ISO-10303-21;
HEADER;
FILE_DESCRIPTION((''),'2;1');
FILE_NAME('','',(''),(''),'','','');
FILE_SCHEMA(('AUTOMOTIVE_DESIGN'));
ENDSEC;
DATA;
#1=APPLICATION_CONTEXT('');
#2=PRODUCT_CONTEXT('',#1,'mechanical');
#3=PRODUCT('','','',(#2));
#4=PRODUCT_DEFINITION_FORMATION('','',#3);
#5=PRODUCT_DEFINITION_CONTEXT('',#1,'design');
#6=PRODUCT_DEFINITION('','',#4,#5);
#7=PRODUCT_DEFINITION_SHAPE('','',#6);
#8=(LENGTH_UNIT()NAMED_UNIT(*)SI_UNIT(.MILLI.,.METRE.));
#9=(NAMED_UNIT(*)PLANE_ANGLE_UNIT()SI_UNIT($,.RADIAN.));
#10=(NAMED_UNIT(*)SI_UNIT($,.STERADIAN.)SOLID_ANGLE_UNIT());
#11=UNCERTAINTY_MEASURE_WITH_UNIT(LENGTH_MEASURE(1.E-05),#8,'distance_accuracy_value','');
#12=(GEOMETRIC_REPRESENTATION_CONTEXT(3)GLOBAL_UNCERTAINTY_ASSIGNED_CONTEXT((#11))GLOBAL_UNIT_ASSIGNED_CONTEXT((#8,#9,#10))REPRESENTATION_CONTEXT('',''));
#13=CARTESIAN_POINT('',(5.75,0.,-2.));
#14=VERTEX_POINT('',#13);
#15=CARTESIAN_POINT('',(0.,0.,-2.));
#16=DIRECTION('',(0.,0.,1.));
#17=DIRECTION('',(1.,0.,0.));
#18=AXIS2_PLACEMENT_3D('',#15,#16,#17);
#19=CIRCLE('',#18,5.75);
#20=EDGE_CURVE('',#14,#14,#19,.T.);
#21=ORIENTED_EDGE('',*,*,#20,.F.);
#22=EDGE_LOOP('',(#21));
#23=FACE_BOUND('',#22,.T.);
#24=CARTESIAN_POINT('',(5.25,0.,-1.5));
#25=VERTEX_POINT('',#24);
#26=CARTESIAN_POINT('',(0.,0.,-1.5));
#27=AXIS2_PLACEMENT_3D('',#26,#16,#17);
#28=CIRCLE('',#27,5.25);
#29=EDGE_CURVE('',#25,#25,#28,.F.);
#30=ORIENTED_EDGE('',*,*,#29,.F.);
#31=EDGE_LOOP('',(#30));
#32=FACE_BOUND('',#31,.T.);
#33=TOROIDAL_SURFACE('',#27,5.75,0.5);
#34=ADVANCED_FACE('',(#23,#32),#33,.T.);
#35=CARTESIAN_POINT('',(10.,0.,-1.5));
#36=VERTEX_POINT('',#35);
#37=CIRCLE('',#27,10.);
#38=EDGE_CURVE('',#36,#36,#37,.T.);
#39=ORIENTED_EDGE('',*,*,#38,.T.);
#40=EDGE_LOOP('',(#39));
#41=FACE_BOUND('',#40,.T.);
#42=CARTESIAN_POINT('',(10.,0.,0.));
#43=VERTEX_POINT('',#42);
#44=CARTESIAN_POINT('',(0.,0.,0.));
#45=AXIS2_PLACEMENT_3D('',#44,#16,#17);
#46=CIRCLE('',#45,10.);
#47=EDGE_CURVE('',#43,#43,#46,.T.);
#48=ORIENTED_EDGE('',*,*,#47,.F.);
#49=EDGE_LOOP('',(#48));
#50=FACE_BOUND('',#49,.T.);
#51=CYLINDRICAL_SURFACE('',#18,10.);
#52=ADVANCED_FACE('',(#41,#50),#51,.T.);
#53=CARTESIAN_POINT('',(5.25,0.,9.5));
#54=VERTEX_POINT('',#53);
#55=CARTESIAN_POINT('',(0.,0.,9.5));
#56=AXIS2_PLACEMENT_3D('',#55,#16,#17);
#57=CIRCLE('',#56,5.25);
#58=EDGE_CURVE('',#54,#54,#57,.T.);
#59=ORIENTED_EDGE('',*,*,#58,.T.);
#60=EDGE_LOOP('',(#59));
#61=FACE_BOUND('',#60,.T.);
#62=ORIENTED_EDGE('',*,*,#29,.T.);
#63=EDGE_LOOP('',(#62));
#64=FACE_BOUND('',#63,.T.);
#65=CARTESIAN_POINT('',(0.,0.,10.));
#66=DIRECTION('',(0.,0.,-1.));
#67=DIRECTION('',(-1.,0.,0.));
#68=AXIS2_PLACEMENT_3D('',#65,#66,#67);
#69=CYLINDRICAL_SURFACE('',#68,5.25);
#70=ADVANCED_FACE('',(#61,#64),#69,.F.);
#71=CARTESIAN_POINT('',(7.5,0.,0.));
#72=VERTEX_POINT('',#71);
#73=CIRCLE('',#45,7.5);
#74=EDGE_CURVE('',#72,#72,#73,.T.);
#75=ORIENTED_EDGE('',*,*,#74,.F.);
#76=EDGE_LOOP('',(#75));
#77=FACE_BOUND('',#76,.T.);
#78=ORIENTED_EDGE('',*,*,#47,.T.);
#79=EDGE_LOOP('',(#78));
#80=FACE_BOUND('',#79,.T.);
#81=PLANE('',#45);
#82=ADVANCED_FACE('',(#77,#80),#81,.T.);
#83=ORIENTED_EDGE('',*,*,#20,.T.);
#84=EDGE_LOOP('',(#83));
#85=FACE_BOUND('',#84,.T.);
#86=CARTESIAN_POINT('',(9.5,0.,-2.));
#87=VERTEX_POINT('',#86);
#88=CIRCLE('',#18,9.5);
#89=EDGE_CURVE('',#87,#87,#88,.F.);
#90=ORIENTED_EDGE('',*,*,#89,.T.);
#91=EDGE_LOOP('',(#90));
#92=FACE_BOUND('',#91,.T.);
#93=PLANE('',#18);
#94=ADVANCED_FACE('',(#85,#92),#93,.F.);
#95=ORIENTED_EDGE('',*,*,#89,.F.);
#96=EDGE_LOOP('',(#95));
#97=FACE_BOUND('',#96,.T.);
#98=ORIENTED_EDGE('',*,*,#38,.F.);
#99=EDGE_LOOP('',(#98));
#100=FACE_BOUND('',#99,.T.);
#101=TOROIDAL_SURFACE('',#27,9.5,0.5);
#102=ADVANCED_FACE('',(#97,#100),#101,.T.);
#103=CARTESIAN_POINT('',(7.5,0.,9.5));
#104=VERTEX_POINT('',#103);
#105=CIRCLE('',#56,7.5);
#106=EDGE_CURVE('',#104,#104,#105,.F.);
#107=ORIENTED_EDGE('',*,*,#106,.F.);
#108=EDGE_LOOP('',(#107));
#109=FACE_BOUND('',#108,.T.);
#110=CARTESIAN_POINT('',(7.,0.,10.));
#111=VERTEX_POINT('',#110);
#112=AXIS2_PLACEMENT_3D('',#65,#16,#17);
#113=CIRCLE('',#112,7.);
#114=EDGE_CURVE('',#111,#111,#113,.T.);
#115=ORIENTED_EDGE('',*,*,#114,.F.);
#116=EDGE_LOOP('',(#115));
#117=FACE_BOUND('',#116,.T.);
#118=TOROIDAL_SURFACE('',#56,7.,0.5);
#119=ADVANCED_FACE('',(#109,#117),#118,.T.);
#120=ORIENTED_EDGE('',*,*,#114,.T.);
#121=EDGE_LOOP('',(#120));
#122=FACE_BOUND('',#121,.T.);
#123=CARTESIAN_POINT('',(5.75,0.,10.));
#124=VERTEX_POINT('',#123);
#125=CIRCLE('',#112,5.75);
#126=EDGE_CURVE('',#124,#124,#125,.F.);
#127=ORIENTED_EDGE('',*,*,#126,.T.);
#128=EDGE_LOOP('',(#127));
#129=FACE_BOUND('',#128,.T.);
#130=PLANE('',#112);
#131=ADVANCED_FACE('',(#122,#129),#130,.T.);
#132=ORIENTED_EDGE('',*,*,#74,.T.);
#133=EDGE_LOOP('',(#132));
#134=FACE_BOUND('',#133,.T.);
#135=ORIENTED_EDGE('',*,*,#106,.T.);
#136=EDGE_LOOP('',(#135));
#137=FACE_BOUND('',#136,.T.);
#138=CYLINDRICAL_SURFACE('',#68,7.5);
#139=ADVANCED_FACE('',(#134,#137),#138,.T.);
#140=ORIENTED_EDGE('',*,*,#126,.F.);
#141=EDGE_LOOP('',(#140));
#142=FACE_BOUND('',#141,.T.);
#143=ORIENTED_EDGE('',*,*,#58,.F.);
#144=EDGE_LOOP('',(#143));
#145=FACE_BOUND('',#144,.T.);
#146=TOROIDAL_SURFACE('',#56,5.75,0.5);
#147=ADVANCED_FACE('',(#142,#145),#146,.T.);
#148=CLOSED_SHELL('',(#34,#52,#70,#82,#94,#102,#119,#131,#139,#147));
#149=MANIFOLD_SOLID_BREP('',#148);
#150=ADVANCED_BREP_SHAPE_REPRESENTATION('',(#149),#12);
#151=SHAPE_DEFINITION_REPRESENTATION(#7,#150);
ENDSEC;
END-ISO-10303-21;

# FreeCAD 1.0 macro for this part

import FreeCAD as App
import Part
import Sketcher


def edges_at(feature, points):
    """Names of the edges that pass closest to the given points."""
    edges = feature.Shape.Edges
    near = lambda p: min(range(len(edges)), key=lambda i: edges[i].distToShape(Part.Vertex(*p))[0])
    return sorted({f"Edge{near(p) + 1}" for p in points})

doc = App.newDocument("Part")
params = doc.addObject("Spreadsheet::Sheet", "Params")
for row, (alias, value) in enumerate([
    ("sketch1_diameter", "15 mm"),
    ("sketch1_diameter2", "10.5 mm"),
    ("pad1_length", "10 mm"),
    ("sketch2_diameter", "20 mm"),
    ("sketch2_diameter2", "10.5 mm"),
    ("pad2_length", "2 mm"),
    ("fillet_radius", "0.5 mm"),
], start=1):
    params.set(f"A{row}", alias)
    params.set(f"B{row}", "=" + value)
    params.setAlias(f"B{row}", alias)

body = doc.addObject("PartDesign::Body", "Body")

# Sketch on XY plane
sketch1 = body.newObject("Sketcher::SketchObject", "Sketch")
sketch1.AttachmentSupport = (doc.getObject("XY_Plane"), [""])
sketch1.MapMode = "FlatFace"
sketch1.addGeometry(Part.Circle(App.Vector(0, 0, 0), App.Vector(0, 0, 1), 7.5), False)
sketch1.addGeometry(Part.Circle(App.Vector(0, 0, 0), App.Vector(0, 0, 1), 5.25), False)
sketch1.addConstraint(Sketcher.Constraint("Coincident", 0, 3, -1, 1))
sketch1.addConstraint(Sketcher.Constraint("Coincident", 1, 3, -1, 1))
sketch1.addConstraint(Sketcher.Constraint("Diameter", 0, 15.0))
sketch1.addConstraint(Sketcher.Constraint("Diameter", 1, 10.5))
sketch1.setExpression("Constraints[2]", "Params.sketch1_diameter")
sketch1.setExpression("Constraints[3]", "Params.sketch1_diameter2")
pad1 = body.newObject("PartDesign::Pad", "Pad")
pad1.Profile = sketch1
pad1.setExpression("Length", "Params.pad1_length")

# Sketch on XY plane
sketch2 = body.newObject("Sketcher::SketchObject", "Sketch001")
sketch2.AttachmentSupport = (doc.getObject("XY_Plane"), [""])
sketch2.MapMode = "FlatFace"
sketch2.AttachmentOffset = App.Placement(App.Vector(0, 0, -2), App.Rotation())
sketch2.addGeometry(Part.Circle(App.Vector(0, 0, 0), App.Vector(0, 0, 1), 10), False)
sketch2.addGeometry(Part.Circle(App.Vector(0, 0, 0), App.Vector(0, 0, 1), 5.25), False)
sketch2.addConstraint(Sketcher.Constraint("Coincident", 0, 3, -1, 1))
sketch2.addConstraint(Sketcher.Constraint("Coincident", 1, 3, -1, 1))
sketch2.addConstraint(Sketcher.Constraint("Diameter", 0, 20.0))
sketch2.addConstraint(Sketcher.Constraint("Diameter", 1, 10.5))
sketch2.setExpression("Constraints[2]", "Params.sketch2_diameter")
sketch2.setExpression("Constraints[3]", "Params.sketch2_diameter2")
pad2 = body.newObject("PartDesign::Pad", "Pad001")
pad2.Profile = sketch2
pad2.setExpression("Length", "Params.pad2_length")
doc.recompute()

fillet = body.newObject("PartDesign::Fillet", "Fillet")
fillet.Base = (pad2, edges_at(pad2, [
    (-7.5, 0, 10),
    (-5.25, 0, 10),
    (-10, 0, -2),
    (-5.25, 0, -2),
]))
fillet.setExpression("Radius", "Params.fillet_radius")

doc.recompute()
